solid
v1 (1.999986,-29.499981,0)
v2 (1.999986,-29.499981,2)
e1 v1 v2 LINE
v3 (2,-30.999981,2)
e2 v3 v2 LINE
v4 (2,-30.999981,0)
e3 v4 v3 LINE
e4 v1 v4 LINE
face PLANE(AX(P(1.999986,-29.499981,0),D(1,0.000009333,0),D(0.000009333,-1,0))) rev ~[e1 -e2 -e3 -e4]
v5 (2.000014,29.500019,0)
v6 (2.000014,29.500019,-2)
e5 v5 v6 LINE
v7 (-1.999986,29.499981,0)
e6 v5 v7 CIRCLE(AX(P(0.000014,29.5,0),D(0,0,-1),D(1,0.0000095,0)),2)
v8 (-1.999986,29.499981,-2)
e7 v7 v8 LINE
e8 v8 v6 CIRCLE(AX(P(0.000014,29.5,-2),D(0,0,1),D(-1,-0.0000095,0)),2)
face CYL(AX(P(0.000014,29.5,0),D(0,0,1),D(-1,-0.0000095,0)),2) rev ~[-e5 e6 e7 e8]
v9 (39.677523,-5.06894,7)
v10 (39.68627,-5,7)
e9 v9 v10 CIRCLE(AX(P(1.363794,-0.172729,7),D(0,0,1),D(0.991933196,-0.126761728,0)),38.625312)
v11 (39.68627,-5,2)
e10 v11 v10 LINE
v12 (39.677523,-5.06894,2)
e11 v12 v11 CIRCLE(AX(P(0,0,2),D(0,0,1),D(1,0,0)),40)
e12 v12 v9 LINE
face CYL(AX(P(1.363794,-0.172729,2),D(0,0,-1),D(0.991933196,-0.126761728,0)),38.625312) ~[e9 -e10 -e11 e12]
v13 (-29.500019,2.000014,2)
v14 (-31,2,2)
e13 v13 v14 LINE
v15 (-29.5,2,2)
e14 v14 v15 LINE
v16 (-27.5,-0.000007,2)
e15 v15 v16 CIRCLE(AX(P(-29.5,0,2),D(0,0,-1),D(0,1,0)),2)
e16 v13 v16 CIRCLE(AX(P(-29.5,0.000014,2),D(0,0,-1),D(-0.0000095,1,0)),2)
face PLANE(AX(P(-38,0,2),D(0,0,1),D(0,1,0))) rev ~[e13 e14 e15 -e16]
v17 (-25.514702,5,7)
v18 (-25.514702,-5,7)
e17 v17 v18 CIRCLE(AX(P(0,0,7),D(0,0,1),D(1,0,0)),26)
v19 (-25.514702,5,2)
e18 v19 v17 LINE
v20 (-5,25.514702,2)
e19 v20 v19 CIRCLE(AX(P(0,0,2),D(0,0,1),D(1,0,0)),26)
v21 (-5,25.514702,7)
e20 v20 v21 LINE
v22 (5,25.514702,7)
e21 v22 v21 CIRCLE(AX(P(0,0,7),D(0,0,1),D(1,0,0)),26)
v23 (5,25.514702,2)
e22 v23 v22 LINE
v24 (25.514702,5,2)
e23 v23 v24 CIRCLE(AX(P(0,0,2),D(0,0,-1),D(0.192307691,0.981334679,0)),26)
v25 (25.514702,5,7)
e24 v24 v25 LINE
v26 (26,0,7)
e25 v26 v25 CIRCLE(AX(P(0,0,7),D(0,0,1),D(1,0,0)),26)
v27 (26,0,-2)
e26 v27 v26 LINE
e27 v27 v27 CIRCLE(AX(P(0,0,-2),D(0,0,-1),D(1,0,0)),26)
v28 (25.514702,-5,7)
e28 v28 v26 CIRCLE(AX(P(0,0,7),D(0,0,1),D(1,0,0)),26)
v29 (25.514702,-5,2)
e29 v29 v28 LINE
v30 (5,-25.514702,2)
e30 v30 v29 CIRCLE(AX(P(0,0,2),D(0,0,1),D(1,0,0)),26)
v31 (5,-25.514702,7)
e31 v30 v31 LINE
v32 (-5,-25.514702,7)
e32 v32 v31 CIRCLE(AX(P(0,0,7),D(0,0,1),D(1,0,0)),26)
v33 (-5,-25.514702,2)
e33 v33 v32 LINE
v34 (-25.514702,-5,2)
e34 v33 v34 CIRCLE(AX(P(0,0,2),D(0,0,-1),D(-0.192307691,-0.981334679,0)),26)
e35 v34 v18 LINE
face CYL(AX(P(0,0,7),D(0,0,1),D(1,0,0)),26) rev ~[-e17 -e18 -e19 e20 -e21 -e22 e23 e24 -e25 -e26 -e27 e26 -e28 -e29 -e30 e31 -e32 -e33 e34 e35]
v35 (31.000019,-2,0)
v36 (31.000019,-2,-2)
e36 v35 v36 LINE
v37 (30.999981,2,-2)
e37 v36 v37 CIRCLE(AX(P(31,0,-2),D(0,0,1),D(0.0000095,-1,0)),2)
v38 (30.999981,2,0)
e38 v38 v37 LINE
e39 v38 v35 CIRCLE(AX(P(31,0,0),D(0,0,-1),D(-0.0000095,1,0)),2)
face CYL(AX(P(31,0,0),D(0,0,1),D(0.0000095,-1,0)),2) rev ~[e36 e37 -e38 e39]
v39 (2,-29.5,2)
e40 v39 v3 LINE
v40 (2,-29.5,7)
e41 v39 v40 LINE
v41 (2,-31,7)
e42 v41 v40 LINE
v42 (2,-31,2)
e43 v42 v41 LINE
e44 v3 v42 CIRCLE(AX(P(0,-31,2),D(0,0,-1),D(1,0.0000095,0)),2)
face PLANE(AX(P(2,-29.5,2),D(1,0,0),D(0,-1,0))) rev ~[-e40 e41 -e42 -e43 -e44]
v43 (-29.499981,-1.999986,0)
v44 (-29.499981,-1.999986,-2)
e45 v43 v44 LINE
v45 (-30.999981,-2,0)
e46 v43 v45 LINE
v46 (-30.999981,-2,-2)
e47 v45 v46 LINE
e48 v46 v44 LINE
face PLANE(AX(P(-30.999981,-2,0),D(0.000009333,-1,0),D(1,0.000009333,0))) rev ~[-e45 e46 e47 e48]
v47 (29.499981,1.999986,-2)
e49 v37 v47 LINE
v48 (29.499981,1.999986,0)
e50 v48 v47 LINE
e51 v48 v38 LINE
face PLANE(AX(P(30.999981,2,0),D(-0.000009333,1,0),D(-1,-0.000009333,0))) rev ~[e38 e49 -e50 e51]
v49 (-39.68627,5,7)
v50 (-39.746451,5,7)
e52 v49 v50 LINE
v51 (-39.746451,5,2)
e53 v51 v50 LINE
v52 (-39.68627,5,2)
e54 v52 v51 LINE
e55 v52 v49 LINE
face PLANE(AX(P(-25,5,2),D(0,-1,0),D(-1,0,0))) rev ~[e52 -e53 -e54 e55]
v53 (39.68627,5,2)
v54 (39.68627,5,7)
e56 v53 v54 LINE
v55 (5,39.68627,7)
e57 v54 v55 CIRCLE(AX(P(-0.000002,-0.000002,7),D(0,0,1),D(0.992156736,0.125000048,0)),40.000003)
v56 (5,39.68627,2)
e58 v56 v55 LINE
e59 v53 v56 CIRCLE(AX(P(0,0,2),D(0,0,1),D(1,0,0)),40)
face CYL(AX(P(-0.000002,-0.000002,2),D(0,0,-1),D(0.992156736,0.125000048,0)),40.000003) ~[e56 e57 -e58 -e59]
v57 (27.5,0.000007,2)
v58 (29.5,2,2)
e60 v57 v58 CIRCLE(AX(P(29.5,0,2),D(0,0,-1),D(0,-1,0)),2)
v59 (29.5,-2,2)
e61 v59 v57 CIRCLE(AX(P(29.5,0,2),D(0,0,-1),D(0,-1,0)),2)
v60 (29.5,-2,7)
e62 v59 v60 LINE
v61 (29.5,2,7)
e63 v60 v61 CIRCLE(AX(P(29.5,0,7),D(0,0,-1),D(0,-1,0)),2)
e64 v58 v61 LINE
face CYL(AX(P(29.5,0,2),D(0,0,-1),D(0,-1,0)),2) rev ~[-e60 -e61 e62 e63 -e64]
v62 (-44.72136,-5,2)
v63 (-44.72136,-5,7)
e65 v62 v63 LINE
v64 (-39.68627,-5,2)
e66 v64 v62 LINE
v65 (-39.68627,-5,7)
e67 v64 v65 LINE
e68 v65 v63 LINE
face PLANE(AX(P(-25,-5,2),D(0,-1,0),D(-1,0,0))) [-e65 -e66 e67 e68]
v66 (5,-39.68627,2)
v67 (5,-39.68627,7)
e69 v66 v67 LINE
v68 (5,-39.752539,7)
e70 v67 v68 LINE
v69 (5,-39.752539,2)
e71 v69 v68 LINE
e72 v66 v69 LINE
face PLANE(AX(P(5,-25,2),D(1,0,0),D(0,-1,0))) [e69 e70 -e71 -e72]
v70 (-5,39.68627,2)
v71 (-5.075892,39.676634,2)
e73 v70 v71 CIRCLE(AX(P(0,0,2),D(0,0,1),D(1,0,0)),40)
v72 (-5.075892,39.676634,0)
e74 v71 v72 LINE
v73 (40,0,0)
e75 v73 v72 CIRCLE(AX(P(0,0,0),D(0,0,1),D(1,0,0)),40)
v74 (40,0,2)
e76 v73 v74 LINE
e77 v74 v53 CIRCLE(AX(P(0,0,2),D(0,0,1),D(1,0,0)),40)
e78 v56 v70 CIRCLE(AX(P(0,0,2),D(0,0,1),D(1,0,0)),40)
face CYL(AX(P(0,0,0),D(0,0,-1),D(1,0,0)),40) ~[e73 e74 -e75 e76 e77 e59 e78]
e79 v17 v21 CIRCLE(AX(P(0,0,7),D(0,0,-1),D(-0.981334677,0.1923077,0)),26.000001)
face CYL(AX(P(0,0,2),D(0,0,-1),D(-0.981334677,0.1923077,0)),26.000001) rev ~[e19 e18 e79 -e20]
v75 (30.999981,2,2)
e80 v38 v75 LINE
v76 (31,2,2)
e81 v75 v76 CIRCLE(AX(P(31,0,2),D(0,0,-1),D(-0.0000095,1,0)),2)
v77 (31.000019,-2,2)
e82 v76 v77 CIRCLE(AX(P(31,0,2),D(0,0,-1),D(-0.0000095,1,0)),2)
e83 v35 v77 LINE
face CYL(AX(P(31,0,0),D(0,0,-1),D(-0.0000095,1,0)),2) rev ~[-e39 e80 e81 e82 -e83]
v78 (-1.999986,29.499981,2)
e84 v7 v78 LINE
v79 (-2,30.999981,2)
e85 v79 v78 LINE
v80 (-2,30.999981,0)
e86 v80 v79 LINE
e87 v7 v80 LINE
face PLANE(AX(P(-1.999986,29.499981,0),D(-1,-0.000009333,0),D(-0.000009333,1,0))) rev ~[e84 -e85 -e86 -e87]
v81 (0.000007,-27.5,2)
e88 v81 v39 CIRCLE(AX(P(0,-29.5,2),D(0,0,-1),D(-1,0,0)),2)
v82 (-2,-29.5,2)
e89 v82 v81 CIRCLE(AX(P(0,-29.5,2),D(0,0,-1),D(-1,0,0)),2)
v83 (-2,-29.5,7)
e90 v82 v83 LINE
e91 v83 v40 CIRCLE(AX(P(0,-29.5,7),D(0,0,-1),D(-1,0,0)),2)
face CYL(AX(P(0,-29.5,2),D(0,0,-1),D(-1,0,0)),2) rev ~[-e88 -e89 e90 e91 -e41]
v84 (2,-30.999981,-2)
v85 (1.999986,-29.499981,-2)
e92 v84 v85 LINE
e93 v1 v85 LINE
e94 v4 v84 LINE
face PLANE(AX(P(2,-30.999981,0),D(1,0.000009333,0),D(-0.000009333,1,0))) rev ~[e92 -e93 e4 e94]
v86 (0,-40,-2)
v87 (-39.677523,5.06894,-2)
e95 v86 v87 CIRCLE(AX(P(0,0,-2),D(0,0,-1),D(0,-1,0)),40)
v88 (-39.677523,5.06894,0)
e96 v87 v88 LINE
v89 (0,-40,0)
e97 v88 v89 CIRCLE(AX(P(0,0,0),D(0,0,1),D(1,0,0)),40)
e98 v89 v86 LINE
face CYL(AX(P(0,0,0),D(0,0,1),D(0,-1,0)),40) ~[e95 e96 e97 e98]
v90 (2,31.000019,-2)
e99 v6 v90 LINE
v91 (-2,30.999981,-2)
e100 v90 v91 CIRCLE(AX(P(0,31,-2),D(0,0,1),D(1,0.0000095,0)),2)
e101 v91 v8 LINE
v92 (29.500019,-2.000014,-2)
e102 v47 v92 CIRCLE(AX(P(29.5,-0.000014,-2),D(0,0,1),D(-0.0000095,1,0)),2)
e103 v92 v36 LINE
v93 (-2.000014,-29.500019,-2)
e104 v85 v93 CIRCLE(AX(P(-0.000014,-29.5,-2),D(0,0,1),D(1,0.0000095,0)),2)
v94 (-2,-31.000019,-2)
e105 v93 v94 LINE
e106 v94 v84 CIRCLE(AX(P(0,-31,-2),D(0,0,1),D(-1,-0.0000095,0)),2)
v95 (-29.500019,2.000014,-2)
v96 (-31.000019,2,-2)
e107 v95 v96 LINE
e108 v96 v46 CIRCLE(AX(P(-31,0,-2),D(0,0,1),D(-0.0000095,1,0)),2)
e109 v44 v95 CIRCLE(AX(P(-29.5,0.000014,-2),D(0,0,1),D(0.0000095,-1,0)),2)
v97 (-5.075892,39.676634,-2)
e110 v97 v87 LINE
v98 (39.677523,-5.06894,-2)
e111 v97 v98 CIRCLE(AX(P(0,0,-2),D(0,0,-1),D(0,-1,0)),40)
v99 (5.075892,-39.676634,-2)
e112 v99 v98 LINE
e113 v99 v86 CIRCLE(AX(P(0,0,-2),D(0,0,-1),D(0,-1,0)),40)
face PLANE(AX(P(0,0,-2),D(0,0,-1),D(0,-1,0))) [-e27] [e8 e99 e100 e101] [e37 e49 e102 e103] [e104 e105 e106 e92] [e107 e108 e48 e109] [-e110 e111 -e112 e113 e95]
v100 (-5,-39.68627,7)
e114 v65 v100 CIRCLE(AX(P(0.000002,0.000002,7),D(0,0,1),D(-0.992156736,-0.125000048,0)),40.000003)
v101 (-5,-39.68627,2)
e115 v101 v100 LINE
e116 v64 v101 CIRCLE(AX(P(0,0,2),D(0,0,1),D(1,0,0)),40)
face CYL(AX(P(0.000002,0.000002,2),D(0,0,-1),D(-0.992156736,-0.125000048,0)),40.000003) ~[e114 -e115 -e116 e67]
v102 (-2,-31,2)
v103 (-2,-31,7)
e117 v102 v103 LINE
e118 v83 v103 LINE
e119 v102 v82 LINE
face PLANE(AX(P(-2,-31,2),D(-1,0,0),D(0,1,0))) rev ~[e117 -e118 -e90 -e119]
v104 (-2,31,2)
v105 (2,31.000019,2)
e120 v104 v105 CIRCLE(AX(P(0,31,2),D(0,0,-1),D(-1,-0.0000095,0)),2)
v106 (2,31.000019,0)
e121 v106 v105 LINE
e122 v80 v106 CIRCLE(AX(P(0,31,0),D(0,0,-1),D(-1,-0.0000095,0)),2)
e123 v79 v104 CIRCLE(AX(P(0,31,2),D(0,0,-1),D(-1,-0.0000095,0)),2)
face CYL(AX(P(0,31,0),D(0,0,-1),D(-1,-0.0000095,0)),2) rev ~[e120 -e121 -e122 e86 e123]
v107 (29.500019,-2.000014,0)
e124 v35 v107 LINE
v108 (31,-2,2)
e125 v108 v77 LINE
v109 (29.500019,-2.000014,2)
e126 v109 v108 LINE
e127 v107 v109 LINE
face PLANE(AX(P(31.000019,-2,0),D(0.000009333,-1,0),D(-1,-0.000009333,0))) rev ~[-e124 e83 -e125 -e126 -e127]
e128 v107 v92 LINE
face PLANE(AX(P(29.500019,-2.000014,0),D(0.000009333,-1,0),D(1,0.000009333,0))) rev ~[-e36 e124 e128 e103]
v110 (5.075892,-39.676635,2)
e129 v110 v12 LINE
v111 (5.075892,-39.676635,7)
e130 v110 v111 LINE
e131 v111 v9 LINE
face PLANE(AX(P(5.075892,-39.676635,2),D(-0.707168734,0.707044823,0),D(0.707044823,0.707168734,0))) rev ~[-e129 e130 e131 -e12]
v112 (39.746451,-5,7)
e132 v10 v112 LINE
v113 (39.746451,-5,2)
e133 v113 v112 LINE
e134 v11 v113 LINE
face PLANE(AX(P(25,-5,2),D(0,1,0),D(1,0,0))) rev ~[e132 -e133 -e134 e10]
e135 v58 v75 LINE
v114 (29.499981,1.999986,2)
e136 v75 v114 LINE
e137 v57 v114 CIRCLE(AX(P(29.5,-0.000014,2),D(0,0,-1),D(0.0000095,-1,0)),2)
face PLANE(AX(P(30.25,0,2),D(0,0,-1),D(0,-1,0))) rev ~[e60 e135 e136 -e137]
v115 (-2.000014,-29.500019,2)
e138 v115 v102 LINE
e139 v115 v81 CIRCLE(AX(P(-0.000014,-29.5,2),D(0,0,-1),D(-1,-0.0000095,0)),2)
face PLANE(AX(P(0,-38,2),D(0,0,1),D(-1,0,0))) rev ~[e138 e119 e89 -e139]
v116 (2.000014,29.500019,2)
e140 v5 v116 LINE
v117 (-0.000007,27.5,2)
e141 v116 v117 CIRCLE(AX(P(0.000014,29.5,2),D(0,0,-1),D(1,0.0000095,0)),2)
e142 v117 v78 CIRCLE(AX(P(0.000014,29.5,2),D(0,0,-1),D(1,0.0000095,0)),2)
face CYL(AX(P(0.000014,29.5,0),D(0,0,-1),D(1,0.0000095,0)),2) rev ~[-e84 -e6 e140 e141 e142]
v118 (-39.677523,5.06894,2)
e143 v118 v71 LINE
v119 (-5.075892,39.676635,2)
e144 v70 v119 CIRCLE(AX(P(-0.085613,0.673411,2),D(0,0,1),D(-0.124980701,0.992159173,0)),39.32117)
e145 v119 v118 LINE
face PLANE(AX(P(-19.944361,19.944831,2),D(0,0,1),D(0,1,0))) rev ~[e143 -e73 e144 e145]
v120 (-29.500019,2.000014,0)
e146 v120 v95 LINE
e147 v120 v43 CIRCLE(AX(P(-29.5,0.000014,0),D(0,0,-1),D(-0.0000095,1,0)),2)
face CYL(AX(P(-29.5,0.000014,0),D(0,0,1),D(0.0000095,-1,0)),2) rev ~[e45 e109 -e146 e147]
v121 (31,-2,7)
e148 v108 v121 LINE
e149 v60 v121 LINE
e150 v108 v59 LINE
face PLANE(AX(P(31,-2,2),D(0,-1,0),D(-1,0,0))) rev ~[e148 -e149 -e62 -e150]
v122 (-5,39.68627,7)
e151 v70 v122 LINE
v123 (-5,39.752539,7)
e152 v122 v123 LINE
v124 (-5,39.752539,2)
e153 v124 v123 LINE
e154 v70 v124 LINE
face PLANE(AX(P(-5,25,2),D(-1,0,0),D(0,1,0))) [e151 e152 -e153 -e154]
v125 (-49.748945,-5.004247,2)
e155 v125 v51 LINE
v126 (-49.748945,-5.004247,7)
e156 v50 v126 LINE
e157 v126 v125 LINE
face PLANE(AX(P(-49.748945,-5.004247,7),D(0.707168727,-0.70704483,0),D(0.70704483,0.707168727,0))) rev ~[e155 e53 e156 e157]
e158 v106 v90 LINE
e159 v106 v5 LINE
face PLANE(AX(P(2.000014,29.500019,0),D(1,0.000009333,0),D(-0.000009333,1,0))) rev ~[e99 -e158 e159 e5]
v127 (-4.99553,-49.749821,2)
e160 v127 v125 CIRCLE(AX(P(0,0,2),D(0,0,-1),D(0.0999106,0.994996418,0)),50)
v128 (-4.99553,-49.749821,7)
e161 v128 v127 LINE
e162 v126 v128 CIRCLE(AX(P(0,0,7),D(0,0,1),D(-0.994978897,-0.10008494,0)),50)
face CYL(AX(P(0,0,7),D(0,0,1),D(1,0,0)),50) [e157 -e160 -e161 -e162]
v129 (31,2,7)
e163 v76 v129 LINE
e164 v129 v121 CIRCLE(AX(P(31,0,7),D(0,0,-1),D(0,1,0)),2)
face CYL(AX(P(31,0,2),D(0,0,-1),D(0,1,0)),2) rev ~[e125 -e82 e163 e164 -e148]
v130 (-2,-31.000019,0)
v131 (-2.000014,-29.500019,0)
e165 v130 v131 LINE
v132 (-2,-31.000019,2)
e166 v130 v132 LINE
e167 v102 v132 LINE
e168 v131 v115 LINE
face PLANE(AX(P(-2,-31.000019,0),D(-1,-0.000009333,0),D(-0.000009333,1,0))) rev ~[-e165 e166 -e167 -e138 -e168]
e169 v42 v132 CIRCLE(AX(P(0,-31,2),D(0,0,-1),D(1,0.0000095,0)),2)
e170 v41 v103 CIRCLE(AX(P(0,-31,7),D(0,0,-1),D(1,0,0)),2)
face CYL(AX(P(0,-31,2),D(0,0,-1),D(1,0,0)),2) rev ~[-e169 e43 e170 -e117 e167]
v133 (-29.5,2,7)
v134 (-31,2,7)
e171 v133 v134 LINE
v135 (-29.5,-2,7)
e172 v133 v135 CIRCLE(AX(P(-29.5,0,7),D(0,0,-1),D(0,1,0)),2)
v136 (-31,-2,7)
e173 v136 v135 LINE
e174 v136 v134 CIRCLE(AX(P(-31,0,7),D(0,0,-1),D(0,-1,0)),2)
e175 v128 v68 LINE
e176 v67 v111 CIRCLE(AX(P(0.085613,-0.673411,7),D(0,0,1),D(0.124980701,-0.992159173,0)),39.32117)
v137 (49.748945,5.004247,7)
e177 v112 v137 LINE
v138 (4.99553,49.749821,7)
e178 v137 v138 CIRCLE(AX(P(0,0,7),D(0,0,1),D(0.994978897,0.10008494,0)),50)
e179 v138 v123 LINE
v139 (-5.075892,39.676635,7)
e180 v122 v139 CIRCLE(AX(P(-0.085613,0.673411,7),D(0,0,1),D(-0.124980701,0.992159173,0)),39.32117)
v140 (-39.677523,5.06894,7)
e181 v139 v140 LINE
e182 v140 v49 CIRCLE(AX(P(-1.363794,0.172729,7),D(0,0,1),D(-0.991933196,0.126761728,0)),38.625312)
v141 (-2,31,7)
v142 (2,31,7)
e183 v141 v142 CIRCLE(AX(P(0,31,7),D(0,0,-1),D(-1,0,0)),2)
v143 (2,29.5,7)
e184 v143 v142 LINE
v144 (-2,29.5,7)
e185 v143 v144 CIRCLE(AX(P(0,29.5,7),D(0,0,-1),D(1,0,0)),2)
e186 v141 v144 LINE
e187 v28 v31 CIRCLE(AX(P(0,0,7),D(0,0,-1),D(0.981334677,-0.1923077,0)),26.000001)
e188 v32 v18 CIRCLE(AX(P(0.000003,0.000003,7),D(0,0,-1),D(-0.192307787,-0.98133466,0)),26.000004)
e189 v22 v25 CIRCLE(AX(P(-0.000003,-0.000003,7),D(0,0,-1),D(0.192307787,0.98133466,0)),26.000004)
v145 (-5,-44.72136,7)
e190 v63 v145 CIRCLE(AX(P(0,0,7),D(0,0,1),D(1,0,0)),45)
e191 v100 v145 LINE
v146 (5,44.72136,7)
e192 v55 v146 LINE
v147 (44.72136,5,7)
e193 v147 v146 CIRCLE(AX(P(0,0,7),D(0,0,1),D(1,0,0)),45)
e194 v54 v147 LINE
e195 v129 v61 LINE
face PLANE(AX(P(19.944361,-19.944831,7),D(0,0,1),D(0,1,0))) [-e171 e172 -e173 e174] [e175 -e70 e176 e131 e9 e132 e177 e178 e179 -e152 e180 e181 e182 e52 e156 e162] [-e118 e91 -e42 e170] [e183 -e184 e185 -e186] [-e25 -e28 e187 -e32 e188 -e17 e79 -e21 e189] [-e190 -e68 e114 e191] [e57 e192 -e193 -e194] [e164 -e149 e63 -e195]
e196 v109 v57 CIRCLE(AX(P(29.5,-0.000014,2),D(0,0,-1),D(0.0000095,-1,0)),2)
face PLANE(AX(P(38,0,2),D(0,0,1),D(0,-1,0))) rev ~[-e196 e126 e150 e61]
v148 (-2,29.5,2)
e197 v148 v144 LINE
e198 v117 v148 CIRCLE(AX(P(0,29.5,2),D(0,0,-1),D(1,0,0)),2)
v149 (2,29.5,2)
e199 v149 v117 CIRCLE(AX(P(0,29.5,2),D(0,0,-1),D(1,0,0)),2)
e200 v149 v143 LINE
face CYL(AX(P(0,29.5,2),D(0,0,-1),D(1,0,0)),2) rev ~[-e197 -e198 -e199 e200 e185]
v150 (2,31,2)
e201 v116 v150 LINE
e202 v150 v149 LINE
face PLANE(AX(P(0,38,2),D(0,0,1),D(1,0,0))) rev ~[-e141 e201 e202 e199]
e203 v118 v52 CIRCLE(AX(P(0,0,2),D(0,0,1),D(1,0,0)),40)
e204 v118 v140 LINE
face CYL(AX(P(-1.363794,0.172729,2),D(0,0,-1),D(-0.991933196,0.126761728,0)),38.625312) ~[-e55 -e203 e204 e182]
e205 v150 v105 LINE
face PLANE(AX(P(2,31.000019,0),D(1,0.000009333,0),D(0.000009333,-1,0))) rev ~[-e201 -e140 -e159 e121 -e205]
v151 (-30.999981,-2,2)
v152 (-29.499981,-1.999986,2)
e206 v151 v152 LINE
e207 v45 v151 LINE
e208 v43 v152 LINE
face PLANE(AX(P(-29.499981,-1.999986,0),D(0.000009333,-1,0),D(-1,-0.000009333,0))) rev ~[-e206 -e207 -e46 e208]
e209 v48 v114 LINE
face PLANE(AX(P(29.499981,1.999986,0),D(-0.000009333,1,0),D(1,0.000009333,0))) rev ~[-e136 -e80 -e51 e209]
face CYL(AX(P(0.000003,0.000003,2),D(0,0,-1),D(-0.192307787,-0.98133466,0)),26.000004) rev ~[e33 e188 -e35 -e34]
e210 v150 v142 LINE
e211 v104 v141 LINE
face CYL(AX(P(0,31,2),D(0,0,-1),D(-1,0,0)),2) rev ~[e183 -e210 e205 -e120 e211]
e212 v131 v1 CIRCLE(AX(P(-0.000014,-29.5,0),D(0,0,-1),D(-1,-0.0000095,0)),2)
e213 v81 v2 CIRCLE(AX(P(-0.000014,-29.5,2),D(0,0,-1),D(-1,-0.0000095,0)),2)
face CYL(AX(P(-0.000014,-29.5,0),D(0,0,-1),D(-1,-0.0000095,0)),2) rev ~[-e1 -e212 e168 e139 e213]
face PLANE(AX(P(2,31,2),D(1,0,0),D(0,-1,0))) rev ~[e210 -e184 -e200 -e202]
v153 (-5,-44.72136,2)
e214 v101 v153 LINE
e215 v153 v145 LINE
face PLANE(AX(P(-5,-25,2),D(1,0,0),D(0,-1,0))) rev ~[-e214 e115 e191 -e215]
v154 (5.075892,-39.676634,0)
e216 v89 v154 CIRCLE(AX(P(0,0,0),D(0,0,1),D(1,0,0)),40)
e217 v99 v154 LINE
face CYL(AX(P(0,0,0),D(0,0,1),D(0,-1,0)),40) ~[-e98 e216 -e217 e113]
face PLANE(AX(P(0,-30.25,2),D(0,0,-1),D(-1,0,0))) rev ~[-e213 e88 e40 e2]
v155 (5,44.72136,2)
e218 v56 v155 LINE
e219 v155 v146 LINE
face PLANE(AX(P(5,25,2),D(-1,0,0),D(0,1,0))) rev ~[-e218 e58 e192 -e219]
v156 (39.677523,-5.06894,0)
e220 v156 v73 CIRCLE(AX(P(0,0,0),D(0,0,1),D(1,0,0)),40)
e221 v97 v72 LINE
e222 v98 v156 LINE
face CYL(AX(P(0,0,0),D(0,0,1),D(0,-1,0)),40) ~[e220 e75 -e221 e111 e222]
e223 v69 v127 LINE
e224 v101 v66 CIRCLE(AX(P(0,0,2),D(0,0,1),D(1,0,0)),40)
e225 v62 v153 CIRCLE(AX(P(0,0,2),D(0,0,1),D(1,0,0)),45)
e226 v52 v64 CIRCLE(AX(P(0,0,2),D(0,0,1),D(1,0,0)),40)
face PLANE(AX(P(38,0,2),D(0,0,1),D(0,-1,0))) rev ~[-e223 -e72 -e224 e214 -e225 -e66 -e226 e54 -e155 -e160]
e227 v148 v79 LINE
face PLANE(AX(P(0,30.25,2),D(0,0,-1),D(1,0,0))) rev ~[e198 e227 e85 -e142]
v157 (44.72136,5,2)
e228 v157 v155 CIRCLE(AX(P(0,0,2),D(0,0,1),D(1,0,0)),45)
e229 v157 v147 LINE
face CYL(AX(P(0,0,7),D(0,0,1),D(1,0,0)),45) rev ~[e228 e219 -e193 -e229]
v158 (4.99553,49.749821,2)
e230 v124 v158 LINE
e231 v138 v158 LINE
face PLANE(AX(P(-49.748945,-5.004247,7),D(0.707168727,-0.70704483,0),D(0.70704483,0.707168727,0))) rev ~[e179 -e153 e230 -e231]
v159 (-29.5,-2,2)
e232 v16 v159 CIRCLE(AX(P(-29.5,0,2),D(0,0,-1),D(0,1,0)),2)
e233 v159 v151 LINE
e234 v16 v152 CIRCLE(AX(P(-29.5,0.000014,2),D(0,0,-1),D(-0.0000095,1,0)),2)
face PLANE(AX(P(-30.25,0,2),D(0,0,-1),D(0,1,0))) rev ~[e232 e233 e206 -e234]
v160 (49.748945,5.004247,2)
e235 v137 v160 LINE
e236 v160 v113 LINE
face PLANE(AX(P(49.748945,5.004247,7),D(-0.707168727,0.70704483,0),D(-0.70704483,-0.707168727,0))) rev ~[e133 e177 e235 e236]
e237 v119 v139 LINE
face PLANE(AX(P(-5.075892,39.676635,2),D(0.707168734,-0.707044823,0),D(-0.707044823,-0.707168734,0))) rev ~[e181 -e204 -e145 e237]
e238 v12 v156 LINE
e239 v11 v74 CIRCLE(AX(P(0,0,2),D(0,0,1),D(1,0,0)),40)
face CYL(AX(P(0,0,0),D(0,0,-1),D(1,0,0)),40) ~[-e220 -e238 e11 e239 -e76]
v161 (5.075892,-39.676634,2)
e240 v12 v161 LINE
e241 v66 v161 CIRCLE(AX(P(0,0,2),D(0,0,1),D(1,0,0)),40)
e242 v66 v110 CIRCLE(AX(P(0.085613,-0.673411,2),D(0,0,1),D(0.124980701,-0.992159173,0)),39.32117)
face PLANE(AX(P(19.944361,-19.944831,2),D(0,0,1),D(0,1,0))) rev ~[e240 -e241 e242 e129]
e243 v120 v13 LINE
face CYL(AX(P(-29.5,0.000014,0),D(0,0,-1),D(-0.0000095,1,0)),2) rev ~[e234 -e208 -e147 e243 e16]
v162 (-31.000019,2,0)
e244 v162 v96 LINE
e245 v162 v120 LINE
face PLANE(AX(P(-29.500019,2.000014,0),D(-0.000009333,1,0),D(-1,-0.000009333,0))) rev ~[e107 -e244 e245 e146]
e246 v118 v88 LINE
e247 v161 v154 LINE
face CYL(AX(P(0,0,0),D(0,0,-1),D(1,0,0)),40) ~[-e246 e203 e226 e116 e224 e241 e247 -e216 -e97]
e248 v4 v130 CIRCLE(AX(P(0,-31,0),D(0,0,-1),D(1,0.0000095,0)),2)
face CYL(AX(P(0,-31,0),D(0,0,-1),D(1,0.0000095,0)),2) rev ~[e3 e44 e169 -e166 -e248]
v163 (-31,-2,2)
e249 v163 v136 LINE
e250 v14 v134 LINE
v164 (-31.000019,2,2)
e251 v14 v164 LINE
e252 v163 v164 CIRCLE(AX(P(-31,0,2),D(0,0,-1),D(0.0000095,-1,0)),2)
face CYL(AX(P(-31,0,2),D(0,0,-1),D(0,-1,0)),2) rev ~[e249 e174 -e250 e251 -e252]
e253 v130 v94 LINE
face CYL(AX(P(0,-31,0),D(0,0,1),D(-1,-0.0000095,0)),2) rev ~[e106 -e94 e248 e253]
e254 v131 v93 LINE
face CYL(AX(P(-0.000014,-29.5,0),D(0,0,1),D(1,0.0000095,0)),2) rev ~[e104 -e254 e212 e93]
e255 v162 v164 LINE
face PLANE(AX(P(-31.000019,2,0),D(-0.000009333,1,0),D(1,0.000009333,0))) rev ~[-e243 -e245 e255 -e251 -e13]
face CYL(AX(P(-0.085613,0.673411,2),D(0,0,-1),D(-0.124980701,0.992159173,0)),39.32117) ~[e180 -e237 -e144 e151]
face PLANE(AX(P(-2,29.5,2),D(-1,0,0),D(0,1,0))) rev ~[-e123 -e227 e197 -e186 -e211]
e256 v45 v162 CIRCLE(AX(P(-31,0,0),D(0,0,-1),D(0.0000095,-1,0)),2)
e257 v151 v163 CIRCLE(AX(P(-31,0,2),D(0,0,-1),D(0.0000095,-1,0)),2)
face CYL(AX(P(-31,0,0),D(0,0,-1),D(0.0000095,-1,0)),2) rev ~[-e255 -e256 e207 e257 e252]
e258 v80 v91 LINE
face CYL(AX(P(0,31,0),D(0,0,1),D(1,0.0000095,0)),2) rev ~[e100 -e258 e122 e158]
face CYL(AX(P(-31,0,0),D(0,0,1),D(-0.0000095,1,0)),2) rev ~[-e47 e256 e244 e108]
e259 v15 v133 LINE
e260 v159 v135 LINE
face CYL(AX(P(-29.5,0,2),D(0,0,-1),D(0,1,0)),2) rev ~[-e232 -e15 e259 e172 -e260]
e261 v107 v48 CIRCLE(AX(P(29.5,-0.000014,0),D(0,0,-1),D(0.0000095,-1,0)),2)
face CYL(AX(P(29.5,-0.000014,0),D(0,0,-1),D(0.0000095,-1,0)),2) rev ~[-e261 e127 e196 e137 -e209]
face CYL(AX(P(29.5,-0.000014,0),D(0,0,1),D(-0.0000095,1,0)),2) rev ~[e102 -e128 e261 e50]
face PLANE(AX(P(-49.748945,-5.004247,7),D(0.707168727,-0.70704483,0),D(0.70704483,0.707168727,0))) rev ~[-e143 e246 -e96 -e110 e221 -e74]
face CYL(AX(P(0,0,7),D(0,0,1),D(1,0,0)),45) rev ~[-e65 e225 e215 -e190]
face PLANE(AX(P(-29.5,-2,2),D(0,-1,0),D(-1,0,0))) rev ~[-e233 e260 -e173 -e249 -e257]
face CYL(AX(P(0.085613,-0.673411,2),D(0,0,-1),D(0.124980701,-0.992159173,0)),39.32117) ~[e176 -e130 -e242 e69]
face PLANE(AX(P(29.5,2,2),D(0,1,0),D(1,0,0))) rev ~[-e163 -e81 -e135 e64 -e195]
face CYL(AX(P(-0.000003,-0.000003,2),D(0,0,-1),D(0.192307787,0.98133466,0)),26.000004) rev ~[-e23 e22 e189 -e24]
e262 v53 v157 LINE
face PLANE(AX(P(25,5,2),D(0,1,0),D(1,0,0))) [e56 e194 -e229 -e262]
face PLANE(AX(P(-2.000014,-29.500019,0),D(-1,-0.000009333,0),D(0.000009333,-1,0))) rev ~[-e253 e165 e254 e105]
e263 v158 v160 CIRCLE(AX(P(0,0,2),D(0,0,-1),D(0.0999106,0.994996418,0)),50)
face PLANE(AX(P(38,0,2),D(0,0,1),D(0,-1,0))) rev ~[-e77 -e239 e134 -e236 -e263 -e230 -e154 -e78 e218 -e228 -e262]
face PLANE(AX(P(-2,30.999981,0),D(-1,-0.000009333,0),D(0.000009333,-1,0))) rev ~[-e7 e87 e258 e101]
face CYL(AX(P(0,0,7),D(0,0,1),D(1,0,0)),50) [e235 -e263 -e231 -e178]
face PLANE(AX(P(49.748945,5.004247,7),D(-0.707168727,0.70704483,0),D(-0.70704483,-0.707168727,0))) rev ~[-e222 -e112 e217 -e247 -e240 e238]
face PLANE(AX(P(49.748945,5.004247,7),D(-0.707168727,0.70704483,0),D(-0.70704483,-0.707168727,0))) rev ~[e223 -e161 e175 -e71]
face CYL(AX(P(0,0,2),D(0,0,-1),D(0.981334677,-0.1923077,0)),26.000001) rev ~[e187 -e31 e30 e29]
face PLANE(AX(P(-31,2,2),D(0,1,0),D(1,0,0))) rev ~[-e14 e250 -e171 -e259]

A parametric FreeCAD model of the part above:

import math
import FreeCAD as App
import Part
import Sketcher
from FreeCAD import Vector

doc = App.newDocument("Part")
body = doc.addObject("PartDesign::Body", "Body")

# Sketch on XY plane
sketch1 = body.newObject("Sketcher::SketchObject", "Sketch")
sketch1.AttachmentSupport = (doc.getObject("XY_Plane"), [""])
sketch1.MapMode = "FlatFace"
sketch1.addGeometry(Part.Circle(Vector(0, 0, 0), Vector(0, 0, 1), 40), False)
sketch1.addConstraint(Sketcher.Constraint("Coincident", 0, 3, -1, 1))
sketch1.addConstraint(Sketcher.Constraint("Diameter", 0, 80.0))
pad1 = body.newObject("PartDesign::Pad", "Pad")
pad1.Profile = sketch1
pad1.Length = 2

# Sketch on XY plane
sketch2 = body.newObject("Sketcher::SketchObject", "Sketch001")
sketch2.AttachmentSupport = (doc.getObject("XY_Plane"), [""])
sketch2.MapMode = "FlatFace"
sketch2.AttachmentOffset = App.Placement(Vector(0, 0, 2), App.Rotation())
sketch2.addGeometry(Part.Circle(Vector(0, 0, 0), Vector(0, 0, 1), 26), False)
sketch2.addConstraint(Sketcher.Constraint("Coincident", 0, 3, -1, 1))
sketch2.addConstraint(Sketcher.Constraint("Diameter", 0, 52.0))
pocket1 = body.newObject("PartDesign::Pocket", "Pocket")
pocket1.Profile = sketch2
pocket1.Length = 5

# Sketch on XY plane
sketch3 = body.newObject("Sketcher::SketchObject", "Sketch002")
sketch3.AttachmentSupport = (doc.getObject("XY_Plane"), [""])
sketch3.MapMode = "FlatFace"
sketch3.addGeometry(Part.ArcOfCircle(Part.Circle(Vector(0, -31, 0), Vector(0, 0, 1), 2), math.radians(-180), math.radians(0)), False)
sketch3.addGeometry(Part.LineSegment(Vector(-2, -31, 0), Vector(-2, -29.5, 0)), False)
sketch3.addGeometry(Part.ArcOfCircle(Part.Circle(Vector(0, -29.5, 0), Vector(0, 0, 1), 2), math.radians(0), math.radians(180)), False)
sketch3.addGeometry(Part.LineSegment(Vector(2, -29.5, 0), Vector(2, -31, 0)), False)
sketch3.addConstraint(Sketcher.Constraint("Tangent", 0, 1, 1, 1))
sketch3.addConstraint(Sketcher.Constraint("Tangent", 1, 2, 2, 2))
sketch3.addConstraint(Sketcher.Constraint("Tangent", 2, 1, 3, 1))
sketch3.addConstraint(Sketcher.Constraint("Tangent", 3, 2, 0, 2))
sketch3.addConstraint(Sketcher.Constraint("Equal", 0, 2))
sketch3.addConstraint(Sketcher.Constraint("PointOnObject", 0, 3, -2))
sketch3.addConstraint(Sketcher.Constraint("Radius", 0, 2.0))
sketch3.addConstraint(Sketcher.Constraint("DistanceY", 0, 3, -1, 1, 31.0))
sketch3.addConstraint(Sketcher.Constraint("Distance", 1, 1.5))
sketch3.addConstraint(Sketcher.Constraint("DistanceY", 0, 1, -1, 1, 31.000019))
pocket2 = body.newObject("PartDesign::Pocket", "Pocket001")
pocket2.Profile = sketch3
pocket2.Length = 5
pocket2.Reversed = True
doc.recompute()

polarpattern = body.newObject("PartDesign::PolarPattern", "PolarPattern")
polarpattern.Originals = [pocket2]
polarpattern.Axis = (doc.getObject("Z_Axis"), [""])
polarpattern.Angle = 360
polarpattern.Occurrences = 4
body.Tip = polarpattern

# Sketch on XY plane
sketch4 = body.newObject("Sketcher::SketchObject", "Sketch003")
sketch4.AttachmentSupport = (doc.getObject("XY_Plane"), [""])
sketch4.MapMode = "FlatFace"
sketch4.addGeometry(Part.Circle(Vector(0, 0, 0), Vector(0, 0, 1), 40), False)
sketch4.addGeometry(Part.ArcOfCircle(Part.Circle(Vector(0, 31, 0), Vector(0, 0, 1), 2), math.radians(0), math.radians(180)), False)
sketch4.addGeometry(Part.LineSegment(Vector(-2, 31, 0), Vector(-2, 29.5, 0)), False)
sketch4.addGeometry(Part.ArcOfCircle(Part.Circle(Vector(0, 29.5, 0), Vector(0, 0, 1), 2), math.radians(-180), math.radians(0)), False)
sketch4.addGeometry(Part.LineSegment(Vector(2, 29.5, 0), Vector(2, 31, 0)), False)
sketch4.addGeometry(Part.ArcOfCircle(Part.Circle(Vector(31, 0, 0), Vector(0, 0, 1), 2), math.radians(-90), math.radians(90)), False)
sketch4.addGeometry(Part.LineSegment(Vector(31, 2, 0), Vector(29.5, 2, 0)), False)
sketch4.addGeometry(Part.ArcOfCircle(Part.Circle(Vector(29.5, 0, 0), Vector(0, 0, 1), 2), math.radians(90), math.radians(270)), False)
sketch4.addGeometry(Part.LineSegment(Vector(29.5, -2, 0), Vector(31, -2, 0)), False)
sketch4.addGeometry(Part.ArcOfCircle(Part.Circle(Vector(-31, 0, 0), Vector(0, 0, 1), 2), math.radians(90), math.radians(270)), False)
sketch4.addGeometry(Part.LineSegment(Vector(-31, -2, 0), Vector(-29.5, -2, 0)), False)
sketch4.addGeometry(Part.ArcOfCircle(Part.Circle(Vector(-29.5, 0, 0), Vector(0, 0, 1), 2), math.radians(-90), math.radians(90)), False)
sketch4.addGeometry(Part.LineSegment(Vector(-29.5, 2, 0), Vector(-31, 2, 0)), False)
sketch4.addGeometry(Part.Circle(Vector(0, 0, 0), Vector(0, 0, 1), 26), False)
sketch4.addGeometry(Part.ArcOfCircle(Part.Circle(Vector(0, -31, 0), Vector(0, 0, 1), 2), math.radians(-180), math.radians(0)), False)
sketch4.addGeometry(Part.LineSegment(Vector(2, -31, 0), Vector(2, -29.5, 0)), False)
sketch4.addGeometry(Part.ArcOfCircle(Part.Circle(Vector(0, -29.5, 0), Vector(0, 0, 1), 2), math.radians(0), math.radians(180)), False)
sketch4.addGeometry(Part.LineSegment(Vector(-2, -29.5, 0), Vector(-2, -31, 0)), False)
sketch4.addConstraint(Sketcher.Constraint("Tangent", 1, 2, 2, 1))
sketch4.addConstraint(Sketcher.Constraint("Tangent", 2, 2, 3, 1))
sketch4.addConstraint(Sketcher.Constraint("Tangent", 3, 2, 4, 1))
sketch4.addConstraint(Sketcher.Constraint("Tangent", 4, 2, 1, 1))
sketch4.addConstraint(Sketcher.Constraint("Tangent", 5, 2, 6, 1))
sketch4.addConstraint(Sketcher.Constraint("Tangent", 6, 2, 7, 1))
sketch4.addConstraint(Sketcher.Constraint("Tangent", 7, 2, 8, 1))
sketch4.addConstraint(Sketcher.Constraint("Tangent", 8, 2, 5, 1))
sketch4.addConstraint(Sketcher.Constraint("Tangent", 9, 2, 10, 1))
sketch4.addConstraint(Sketcher.Constraint("Tangent", 10, 2, 11, 1))
sketch4.addConstraint(Sketcher.Constraint("Tangent", 11, 2, 12, 1))
sketch4.addConstraint(Sketcher.Constraint("Tangent", 12, 2, 9, 1))
sketch4.addConstraint(Sketcher.Constraint("Tangent", 14, 2, 15, 1))
sketch4.addConstraint(Sketcher.Constraint("Tangent", 15, 2, 16, 1))
sketch4.addConstraint(Sketcher.Constraint("Tangent", 16, 2, 17, 1))
sketch4.addConstraint(Sketcher.Constraint("Tangent", 17, 2, 14, 1))
sketch4.addConstraint(Sketcher.Constraint("Coincident", 0, 3, -1, 1))
sketch4.addConstraint(Sketcher.Constraint("Coincident", 13, 3, -1, 1))
sketch4.addConstraint(Sketcher.Constraint("Equal", 1, 3))
sketch4.addConstraint(Sketcher.Constraint("Equal", 3, 5))
sketch4.addConstraint(Sketcher.Constraint("Equal", 5, 7))
sketch4.addConstraint(Sketcher.Constraint("Equal", 7, 9))
sketch4.addConstraint(Sketcher.Constraint("Equal", 9, 11))
sketch4.addConstraint(Sketcher.Constraint("Equal", 11, 14))
sketch4.addConstraint(Sketcher.Constraint("Equal", 14, 16))
sketch4.addConstraint(Sketcher.Constraint("Symmetric", 5, 3, 9, 3, -1, 1))
sketch4.addConstraint(Sketcher.Constraint("Symmetric", 7, 3, 11, 3, -1, 1))
sketch4.addConstraint(Sketcher.Constraint("Symmetric", 1, 3, 14, 3, -1, 1))
sketch4.addConstraint(Sketcher.Constraint("Symmetric", 3, 3, 16, 3, -1, 1))
sketch4.addConstraint(Sketcher.Constraint("PointOnObject", 1, 3, -2))
sketch4.addConstraint(Sketcher.Constraint("PointOnObject", 5, 3, -1))
sketch4.addConstraint(Sketcher.Constraint("Perpendicular", 4, 6))
sketch4.addConstraint(Sketcher.Constraint("Equal", 4, 6))
sketch4.addConstraint(Sketcher.Constraint("Diameter", 0, 80.0))
sketch4.addConstraint(Sketcher.Constraint("Diameter", 13, 52.0))
sketch4.addConstraint(Sketcher.Constraint("Radius", 1, 2.0))
sketch4.addConstraint(Sketcher.Constraint("DistanceY", -1, 1, 1, 3, 31.0))
sketch4.addConstraint(Sketcher.Constraint("DistanceX", -1, 1, 5, 3, 31.0))
sketch4.addConstraint(Sketcher.Constraint("DistanceX", 11, 3, 7, 3, 59.0))
sketch4.addConstraint(Sketcher.Constraint("DistanceY", -1, 1, 1, 2, 30.999981))
pad2 = body.newObject("PartDesign::Pad", "Pad001")
pad2.Profile = sketch4
pad2.Length = 2
pad2.Reversed = True

# Sketch on XY plane
sketch5 = body.newObject("Sketcher::SketchObject", "Sketch004")
sketch5.AttachmentSupport = (doc.getObject("XY_Plane"), [""])
sketch5.MapMode = "FlatFace"
sketch5.AttachmentOffset = App.Placement(Vector(0, 0, 2), App.Rotation())
sketch5.addGeometry(Part.LineSegment(Vector(-5, 51, 0), Vector(-5, 25, 0)), False)
sketch5.addGeometry(Part.LineSegment(Vector(-5, 25, 0), Vector(5, 25, 0)), False)
sketch5.addGeometry(Part.LineSegment(Vector(5, 25, 0), Vector(5, 51, 0)), False)
sketch5.addGeometry(Part.LineSegment(Vector(5, 51, 0), Vector(-5, 51, 0)), False)
sketch5.addConstraint(Sketcher.Constraint("Coincident", 0, 2, 1, 1))
sketch5.addConstraint(Sketcher.Constraint("Coincident", 1, 2, 2, 1))
sketch5.addConstraint(Sketcher.Constraint("Coincident", 2, 2, 3, 1))
sketch5.addConstraint(Sketcher.Constraint("Coincident", 3, 2, 0, 1))
sketch5.addConstraint(Sketcher.Constraint("Vertical", 0))
sketch5.addConstraint(Sketcher.Constraint("Horizontal", 1))
sketch5.addConstraint(Sketcher.Constraint("Vertical", 2))
sketch5.addConstraint(Sketcher.Constraint("Horizontal", 3))
sketch5.addConstraint(Sketcher.Constraint("DistanceX", 1, 1, 1, 2, 10.0))
sketch5.addConstraint(Sketcher.Constraint("DistanceY", 0, 2, 0, 1, 26.0))
sketch5.addConstraint(Sketcher.Constraint("DistanceX", 0, 2, -1, 1, 5.0))
sketch5.addConstraint(Sketcher.Constraint("DistanceY", -1, 1, 0, 2, 25.0))
pad3 = body.newObject("PartDesign::Pad", "Pad002")
pad3.Profile = sketch5
pad3.Length = 5
doc.recompute()

polarpattern2 = body.newObject("PartDesign::PolarPattern", "PolarPattern001")
polarpattern2.Originals = [pad3]
polarpattern2.Axis = (doc.getObject("Z_Axis"), [""])
polarpattern2.Angle = 360
polarpattern2.Occurrences = 4
body.Tip = polarpattern2

# Sketch on XY plane
sketch6 = body.newObject("Sketcher::SketchObject", "Sketch005")
sketch6.AttachmentSupport = (doc.getObject("XY_Plane"), [""])
sketch6.MapMode = "FlatFace"
sketch6.AttachmentOffset = App.Placement(Vector(0, 0, 2), App.Rotation())
sketch6.addGeometry(Part.ArcOfCircle(Part.Circle(Vector(0, 31, 0), Vector(0, 0, 1), 2), math.radians(0), math.radians(180)), False)
sketch6.addGeometry(Part.LineSegment(Vector(2, 31, 0), Vector(2, 29.5, 0)), False)
sketch6.addGeometry(Part.ArcOfCircle(Part.Circle(Vector(0, 29.5, 0), Vector(0, 0, 1), 2), math.radians(180), math.radians(360)), False)
sketch6.addGeometry(Part.LineSegment(Vector(-2, 29.5, 0), Vector(-2, 31, 0)), False)
sketch6.addConstraint(Sketcher.Constraint("Tangent", 0, 1, 1, 1))
sketch6.addConstraint(Sketcher.Constraint("Tangent", 1, 2, 2, 2))
sketch6.addConstraint(Sketcher.Constraint("Tangent", 2, 1, 3, 1))
sketch6.addConstraint(Sketcher.Constraint("Tangent", 3, 2, 0, 2))
sketch6.addConstraint(Sketcher.Constraint("Vertical", 1))
sketch6.addConstraint(Sketcher.Constraint("Vertical", 3))
sketch6.addConstraint(Sketcher.Constraint("PointOnObject", 0, 3, -2))
sketch6.addConstraint(Sketcher.Constraint("Radius", 0, 2.0))
sketch6.addConstraint(Sketcher.Constraint("DistanceY", 1, 2, 1, 1, 1.5))
sketch6.addConstraint(Sketcher.Constraint("DistanceY", -1, 1, 0, 3, 31.0))
pocket3 = body.newObject("PartDesign::Pocket", "Pocket002")
pocket3.Profile = sketch6
pocket3.Type = "ThroughAll"
pocket3.Reversed = True
doc.recompute()

polarpattern3 = body.newObject("PartDesign::PolarPattern", "PolarPattern002")
polarpattern3.Originals = [pocket3]
polarpattern3.Axis = (doc.getObject("Z_Axis"), [""])
polarpattern3.Angle = 360
polarpattern3.Occurrences = 4
body.Tip = polarpattern3

# Sketch on XY plane
sketch7 = body.newObject("Sketcher::SketchObject", "Sketch006")
sketch7.AttachmentSupport = (doc.getObject("XY_Plane"), [""])
sketch7.MapMode = "FlatFace"
sketch7.AttachmentOffset = App.Placement(Vector(0, 0, 7), App.Rotation())
sketch7.addGeometry(Part.Circle(Vector(0, 0, 0), Vector(0, 0, 1), 26), False)
sketch7.addConstraint(Sketcher.Constraint("Coincident", 0, 3, -1, 1))
sketch7.addConstraint(Sketcher.Constraint("Diameter", 0, 52.0))
pocket4 = body.newObject("PartDesign::Pocket", "Pocket003")
pocket4.Profile = sketch7
pocket4.Type = "ThroughAll"

# Sketch on XY plane
sketch8 = body.newObject("Sketcher::SketchObject", "Sketch007")
sketch8.AttachmentSupport = (doc.getObject("XY_Plane"), [""])
sketch8.MapMode = "FlatFace"
sketch8.AttachmentOffset = App.Placement(Vector(0, 0, 7), App.Rotation())
sketch8.addGeometry(Part.Circle(Vector(0, 0, 0), Vector(0, 0, 1), 50), False)
sketch8.addGeometry(Part.Circle(Vector(0, 0, 0), Vector(0, 0, 1), 45), False)
sketch8.addConstraint(Sketcher.Constraint("Coincident", 0, 3, -1, 1))
sketch8.addConstraint(Sketcher.Constraint("Coincident", 1, 3, -1, 1))
sketch8.addConstraint(Sketcher.Constraint("Diameter", 0, 100.0))
sketch8.addConstraint(Sketcher.Constraint("Diameter", 1, 90.0))
pad4 = body.newObject("PartDesign::Pad", "Pad003")
pad4.Profile = sketch8
pad4.Length = 5
pad4.Reversed = True

# Sketch on XY plane
sketch9 = body.newObject("Sketcher::SketchObject", "Sketch008")
sketch9.AttachmentSupport = (doc.getObject("XY_Plane"), [""])
sketch9.MapMode = "FlatFace"
sketch9.AttachmentOffset = App.Placement(Vector(0, 0, 7), App.Rotation())
sketch9.addGeometry(Part.Circle(Vector(0, 0, 0), Vector(0, 0, 1), 87), False)
sketch9.addGeometry(Part.Circle(Vector(0, 0, 0), Vector(0, 0, 1), 50), False)
sketch9.addConstraint(Sketcher.Constraint("Coincident", 0, 3, -1, 1))
sketch9.addConstraint(Sketcher.Constraint("Coincident", 1, 3, -1, 1))
sketch9.addConstraint(Sketcher.Constraint("Diameter", 1, 100.0))
sketch9.addConstraint(Sketcher.Constraint("Diameter", 0, 173.34643))
pocket5 = body.newObject("PartDesign::Pocket", "Pocket004")
pocket5.Profile = sketch9
pocket5.Type = "ThroughAll"

# Sketch on XY plane
sketch10 = body.newObject("Sketcher::SketchObject", "Sketch009")
sketch10.AttachmentSupport = (doc.getObject("XY_Plane"), [""])
sketch10.MapMode = "FlatFace"
sketch10.AttachmentOffset = App.Placement(Vector(0, 0, 7), App.Rotation())
sketch10.addGeometry(Part.LineSegment(Vector(-50, -5, 0), Vector(5, 50, 0)), False)
sketch10.addGeometry(Part.LineSegment(Vector(5, 50, 0), Vector(0, 76, 0)), False)
sketch10.addGeometry(Part.LineSegment(Vector(0, 76, 0), Vector(-76, 0, 0)), False)
sketch10.addGeometry(Part.LineSegment(Vector(-76, 0, 0), Vector(-50, -5, 0)), False)
sketch10.addConstraint(Sketcher.Constraint("Coincident", 0, 2, 1, 1))
sketch10.addConstraint(Sketcher.Constraint("Coincident", 1, 2, 2, 1))
sketch10.addConstraint(Sketcher.Constraint("Coincident", 2, 2, 3, 1))
sketch10.addConstraint(Sketcher.Constraint("Coincident", 3, 2, 0, 1))
sketch10.addConstraint(Sketcher.Constraint("PointOnObject", 1, 2, -2))
sketch10.addConstraint(Sketcher.Constraint("PointOnObject", 2, 2, -1))
sketch10.addConstraint(Sketcher.Constraint("Distance", 1, 26.369129))
sketch10.addConstraint(Sketcher.Constraint("DistanceX", -1, 1, 0, 2, 4.99553))
sketch10.addConstraint(Sketcher.Constraint("DistanceY", -1, 1, 0, 2, 49.749821))
sketch10.addConstraint(Sketcher.Constraint("DistanceY", 3, 2, 1, 2, 80.645681))
sketch10.addConstraint(Sketcher.Constraint("Distance", 0, 77.427163))
sketch10.addConstraint(Sketcher.Constraint("Distance", 2, 107.186648))
pocket6 = body.newObject("PartDesign::Pocket", "Pocket005")
pocket6.Profile = sketch10
pocket6.Type = "ThroughAll"
doc.recompute()

polarpattern4 = body.newObject("PartDesign::PolarPattern", "PolarPattern003")
polarpattern4.Originals = [pocket6]
polarpattern4.Axis = (doc.getObject("Z_Axis"), [""])
polarpattern4.Angle = 360
polarpattern4.Occurrences = 2
body.Tip = polarpattern4

# Sketch on XY plane
sketch11 = body.newObject("Sketcher::SketchObject", "Sketch010")
sketch11.AttachmentSupport = (doc.getObject("XY_Plane"), [""])
sketch11.MapMode = "FlatFace"
sketch11.AttachmentOffset = App.Placement(Vector(0, 0, 2), App.Rotation())
sketch11.addGeometry(Part.LineSegment(Vector(-5, 25.51, 0), Vector(-5, 39.69, 0)), False)
sketch11.addGeometry(Part.ArcOfCircle(Part.Circle(Vector(-0.09, 0.67, 0), Vector(0, 0, 1), 39.32), math.radians(97.18), math.radians(97.29)), False)
sketch11.addGeometry(Part.LineSegment(Vector(-5.08, 39.68, 0), Vector(-39.68, 5.07, 0)), False)
sketch11.addGeometry(Part.ArcOfCircle(Part.Circle(Vector(-1.36, 0.17, 0), Vector(0, 0, 1), 38.63), math.radians(172.72), math.radians(172.82)), False)
sketch11.addGeometry(Part.LineSegment(Vector(-39.69, 5, 0), Vector(-25.51, 5, 0)), False)
sketch11.addGeometry(Part.ArcOfCircle(Part.Circle(Vector(0, 0, 0), Vector(0, 0, 1), 26), math.radians(101), math.radians(169)), False)
sketch11.addConstraint(Sketcher.Constraint("Coincident", 0, 2, 1, 1))
sketch11.addConstraint(Sketcher.Constraint("Coincident", 1, 2, 2, 1))
sketch11.addConstraint(Sketcher.Constraint("Coincident", 2, 2, 3, 1))
sketch11.addConstraint(Sketcher.Constraint("Coincident", 3, 2, 4, 1))
sketch11.addConstraint(Sketcher.Constraint("Coincident", 4, 2, 5, 2))
sketch11.addConstraint(Sketcher.Constraint("Coincident", 5, 1, 0, 1))
sketch11.addConstraint(Sketcher.Constraint("Vertical", 0))
sketch11.addConstraint(Sketcher.Constraint("Horizontal", 4))
sketch11.addConstraint(Sketcher.Constraint("Coincident", 5, 3, -1, 1))
sketch11.addConstraint(Sketcher.Constraint("Equal", 4, 0))
sketch11.addConstraint(Sketcher.Constraint("Radius", 5, 26.000001))
sketch11.addConstraint(Sketcher.Constraint("DistanceX", 0, 2, -1, 1, 5.0))
sketch11.addConstraint(Sketcher.Constraint("DistanceY", -1, 1, 3, 2, 5.0))
sketch11.addConstraint(Sketcher.Constraint("Radius", 1, 39.32117))
sketch11.addConstraint(Sketcher.Constraint("Radius", 3, 38.625312))
sketch11.addConstraint(Sketcher.Constraint("DistanceX", 4, 1, 4, 2, 14.171568))
sketch11.addConstraint(Sketcher.Constraint("DistanceX", 1, 2, 3, 3, 3.712098))
sketch11.addConstraint(Sketcher.Constraint("DistanceY", -1, 1, 1, 3, 0.673411))
sketch11.addConstraint(Sketcher.Constraint("DistanceY", -1, 1, 3, 3, 0.172729))
sketch11.addConstraint(Sketcher.Constraint("DistanceY", -1, 1, 2, 2, 5.06894))
pad5 = body.newObject("PartDesign::Pad", "Pad004")
pad5.Profile = sketch11
pad5.Length = 5

# Sketch on XY plane
sketch12 = body.newObject("Sketcher::SketchObject", "Sketch011")
sketch12.AttachmentSupport = (doc.getObject("XY_Plane"), [""])
sketch12.MapMode = "FlatFace"
sketch12.AttachmentOffset = App.Placement(Vector(0, 0, 2), App.Rotation())
sketch12.addGeometry(Part.LineSegment(Vector(-26, -5, 0), Vector(-40, -5, 0)), False)
sketch12.addGeometry(Part.ArcOfCircle(Part.Circle(Vector(0, 0, 0), Vector(0, 0, 1), 40), math.radians(-173), math.radians(-97)), False)
sketch12.addGeometry(Part.LineSegment(Vector(-5, -40, 0), Vector(-5, -26, 0)), False)
sketch12.addGeometry(Part.ArcOfCircle(Part.Circle(Vector(0, 0, 0), Vector(0, 0, 1), 26), math.radians(-169), math.radians(-101)), False)
sketch12.addConstraint(Sketcher.Constraint("Coincident", 0, 2, 1, 1))
sketch12.addConstraint(Sketcher.Constraint("Coincident", 1, 2, 2, 1))
sketch12.addConstraint(Sketcher.Constraint("Coincident", 2, 2, 3, 2))
sketch12.addConstraint(Sketcher.Constraint("Coincident", 3, 1, 0, 1))
sketch12.addConstraint(Sketcher.Constraint("Horizontal", 0))
sketch12.addConstraint(Sketcher.Constraint("Vertical", 2))
sketch12.addConstraint(Sketcher.Constraint("Coincident", 1, 3, -1, 1))
sketch12.addConstraint(Sketcher.Constraint("Coincident", 3, 3, -1, 1))
sketch12.addConstraint(Sketcher.Constraint("Equal", 0, 2))
sketch12.addConstraint(Sketcher.Constraint("DistanceY", 0, 2, -1, 1, 5.0))
sketch12.addConstraint(Sketcher.Constraint("Radius", 1, 40.000003))
sketch12.addConstraint(Sketcher.Constraint("Radius", 3, 26.000004))
pad6 = body.newObject("PartDesign::Pad", "Pad005")
pad6.Profile = sketch12
pad6.Length = 5

# Sketch on XY plane
sketch13 = body.newObject("Sketcher::SketchObject", "Sketch012")
sketch13.AttachmentSupport = (doc.getObject("XY_Plane"), [""])
sketch13.MapMode = "FlatFace"
sketch13.AttachmentOffset = App.Placement(Vector(0, 0, 2), App.Rotation())
sketch13.addGeometry(Part.LineSegment(Vector(26, 5, 0), Vector(40, 5, 0)), False)
sketch13.addGeometry(Part.ArcOfCircle(Part.Circle(Vector(0, 0, 0), Vector(0, 0, 1), 40), math.radians(7), math.radians(83)), False)
sketch13.addGeometry(Part.LineSegment(Vector(5, 40, 0), Vector(5, 26, 0)), False)
sketch13.addGeometry(Part.ArcOfCircle(Part.Circle(Vector(0, 0, 0), Vector(0, 0, 1), 26), math.radians(11), math.radians(79)), False)
sketch13.addConstraint(Sketcher.Constraint("Coincident", 0, 2, 1, 1))
sketch13.addConstraint(Sketcher.Constraint("Coincident", 1, 2, 2, 1))
sketch13.addConstraint(Sketcher.Constraint("Coincident", 2, 2, 3, 2))
sketch13.addConstraint(Sketcher.Constraint("Coincident", 3, 1, 0, 1))
sketch13.addConstraint(Sketcher.Constraint("Horizontal", 0))
sketch13.addConstraint(Sketcher.Constraint("Vertical", 2))
sketch13.addConstraint(Sketcher.Constraint("Coincident", 1, 3, -1, 1))
sketch13.addConstraint(Sketcher.Constraint("Coincident", 3, 3, -1, 1))
sketch13.addConstraint(Sketcher.Constraint("Equal", 0, 2))
sketch13.addConstraint(Sketcher.Constraint("DistanceY", -1, 1, 0, 2, 5.0))
sketch13.addConstraint(Sketcher.Constraint("Radius", 1, 40.000003))
sketch13.addConstraint(Sketcher.Constraint("Radius", 3, 26.000004))
pad7 = body.newObject("PartDesign::Pad", "Pad006")
pad7.Profile = sketch13
pad7.Length = 5

# Sketch on XY plane
sketch14 = body.newObject("Sketcher::SketchObject", "Sketch013")
sketch14.AttachmentSupport = (doc.getObject("XY_Plane"), [""])
sketch14.MapMode = "FlatFace"
sketch14.AttachmentOffset = App.Placement(Vector(0, 0, 2), App.Rotation())
sketch14.addGeometry(Part.LineSegment(Vector(5, -25.51, 0), Vector(5, -39.69, 0)), False)
sketch14.addGeometry(Part.ArcOfCircle(Part.Circle(Vector(0.09, -0.67, 0), Vector(0, 0, 1), 39.32), math.radians(-82.82), math.radians(-82.71)), False)
sketch14.addGeometry(Part.LineSegment(Vector(5.08, -39.68, 0), Vector(39.68, -5.07, 0)), False)
sketch14.addGeometry(Part.ArcOfCircle(Part.Circle(Vector(1.36, -0.17, 0), Vector(0, 0, 1), 38.63), math.radians(-7.28), math.radians(-7.18)), False)
sketch14.addGeometry(Part.LineSegment(Vector(39.69, -5, 0), Vector(25.51, -5, 0)), False)
sketch14.addGeometry(Part.ArcOfCircle(Part.Circle(Vector(0, 0, 0), Vector(0, 0, 1), 26), math.radians(-79), math.radians(-11)), False)
sketch14.addConstraint(Sketcher.Constraint("Coincident", 0, 2, 1, 1))
sketch14.addConstraint(Sketcher.Constraint("Coincident", 1, 2, 2, 1))
sketch14.addConstraint(Sketcher.Constraint("Coincident", 2, 2, 3, 1))
sketch14.addConstraint(Sketcher.Constraint("Coincident", 3, 2, 4, 1))
sketch14.addConstraint(Sketcher.Constraint("Coincident", 4, 2, 5, 2))
sketch14.addConstraint(Sketcher.Constraint("Coincident", 5, 1, 0, 1))
sketch14.addConstraint(Sketcher.Constraint("Vertical", 0))
sketch14.addConstraint(Sketcher.Constraint("Horizontal", 4))
sketch14.addConstraint(Sketcher.Constraint("Coincident", 5, 3, -1, 1))
sketch14.addConstraint(Sketcher.Constraint("Equal", 4, 0))
sketch14.addConstraint(Sketcher.Constraint("Radius", 5, 26.000001))
sketch14.addConstraint(Sketcher.Constraint("DistanceX", -1, 1, 0, 2, 5.0))
sketch14.addConstraint(Sketcher.Constraint("DistanceY", 3, 2, -1, 1, 5.0))
sketch14.addConstraint(Sketcher.Constraint("Radius", 1, 39.32117))
sketch14.addConstraint(Sketcher.Constraint("Radius", 3, 38.625312))
sketch14.addConstraint(Sketcher.Constraint("DistanceX", 4, 2, 4, 1, 14.171568))
sketch14.addConstraint(Sketcher.Constraint("DistanceX", 3, 3, 1, 2, 3.712098))
sketch14.addConstraint(Sketcher.Constraint("DistanceY", 1, 3, -1, 1, 0.673411))
sketch14.addConstraint(Sketcher.Constraint("DistanceY", 3, 3, -1, 1, 0.172729))
sketch14.addConstraint(Sketcher.Constraint("DistanceY", 2, 2, -1, 1, 5.06894))
pad8 = body.newObject("PartDesign::Pad", "Pad007")
pad8.Profile = sketch14
pad8.Length = 5

doc.recompute()
